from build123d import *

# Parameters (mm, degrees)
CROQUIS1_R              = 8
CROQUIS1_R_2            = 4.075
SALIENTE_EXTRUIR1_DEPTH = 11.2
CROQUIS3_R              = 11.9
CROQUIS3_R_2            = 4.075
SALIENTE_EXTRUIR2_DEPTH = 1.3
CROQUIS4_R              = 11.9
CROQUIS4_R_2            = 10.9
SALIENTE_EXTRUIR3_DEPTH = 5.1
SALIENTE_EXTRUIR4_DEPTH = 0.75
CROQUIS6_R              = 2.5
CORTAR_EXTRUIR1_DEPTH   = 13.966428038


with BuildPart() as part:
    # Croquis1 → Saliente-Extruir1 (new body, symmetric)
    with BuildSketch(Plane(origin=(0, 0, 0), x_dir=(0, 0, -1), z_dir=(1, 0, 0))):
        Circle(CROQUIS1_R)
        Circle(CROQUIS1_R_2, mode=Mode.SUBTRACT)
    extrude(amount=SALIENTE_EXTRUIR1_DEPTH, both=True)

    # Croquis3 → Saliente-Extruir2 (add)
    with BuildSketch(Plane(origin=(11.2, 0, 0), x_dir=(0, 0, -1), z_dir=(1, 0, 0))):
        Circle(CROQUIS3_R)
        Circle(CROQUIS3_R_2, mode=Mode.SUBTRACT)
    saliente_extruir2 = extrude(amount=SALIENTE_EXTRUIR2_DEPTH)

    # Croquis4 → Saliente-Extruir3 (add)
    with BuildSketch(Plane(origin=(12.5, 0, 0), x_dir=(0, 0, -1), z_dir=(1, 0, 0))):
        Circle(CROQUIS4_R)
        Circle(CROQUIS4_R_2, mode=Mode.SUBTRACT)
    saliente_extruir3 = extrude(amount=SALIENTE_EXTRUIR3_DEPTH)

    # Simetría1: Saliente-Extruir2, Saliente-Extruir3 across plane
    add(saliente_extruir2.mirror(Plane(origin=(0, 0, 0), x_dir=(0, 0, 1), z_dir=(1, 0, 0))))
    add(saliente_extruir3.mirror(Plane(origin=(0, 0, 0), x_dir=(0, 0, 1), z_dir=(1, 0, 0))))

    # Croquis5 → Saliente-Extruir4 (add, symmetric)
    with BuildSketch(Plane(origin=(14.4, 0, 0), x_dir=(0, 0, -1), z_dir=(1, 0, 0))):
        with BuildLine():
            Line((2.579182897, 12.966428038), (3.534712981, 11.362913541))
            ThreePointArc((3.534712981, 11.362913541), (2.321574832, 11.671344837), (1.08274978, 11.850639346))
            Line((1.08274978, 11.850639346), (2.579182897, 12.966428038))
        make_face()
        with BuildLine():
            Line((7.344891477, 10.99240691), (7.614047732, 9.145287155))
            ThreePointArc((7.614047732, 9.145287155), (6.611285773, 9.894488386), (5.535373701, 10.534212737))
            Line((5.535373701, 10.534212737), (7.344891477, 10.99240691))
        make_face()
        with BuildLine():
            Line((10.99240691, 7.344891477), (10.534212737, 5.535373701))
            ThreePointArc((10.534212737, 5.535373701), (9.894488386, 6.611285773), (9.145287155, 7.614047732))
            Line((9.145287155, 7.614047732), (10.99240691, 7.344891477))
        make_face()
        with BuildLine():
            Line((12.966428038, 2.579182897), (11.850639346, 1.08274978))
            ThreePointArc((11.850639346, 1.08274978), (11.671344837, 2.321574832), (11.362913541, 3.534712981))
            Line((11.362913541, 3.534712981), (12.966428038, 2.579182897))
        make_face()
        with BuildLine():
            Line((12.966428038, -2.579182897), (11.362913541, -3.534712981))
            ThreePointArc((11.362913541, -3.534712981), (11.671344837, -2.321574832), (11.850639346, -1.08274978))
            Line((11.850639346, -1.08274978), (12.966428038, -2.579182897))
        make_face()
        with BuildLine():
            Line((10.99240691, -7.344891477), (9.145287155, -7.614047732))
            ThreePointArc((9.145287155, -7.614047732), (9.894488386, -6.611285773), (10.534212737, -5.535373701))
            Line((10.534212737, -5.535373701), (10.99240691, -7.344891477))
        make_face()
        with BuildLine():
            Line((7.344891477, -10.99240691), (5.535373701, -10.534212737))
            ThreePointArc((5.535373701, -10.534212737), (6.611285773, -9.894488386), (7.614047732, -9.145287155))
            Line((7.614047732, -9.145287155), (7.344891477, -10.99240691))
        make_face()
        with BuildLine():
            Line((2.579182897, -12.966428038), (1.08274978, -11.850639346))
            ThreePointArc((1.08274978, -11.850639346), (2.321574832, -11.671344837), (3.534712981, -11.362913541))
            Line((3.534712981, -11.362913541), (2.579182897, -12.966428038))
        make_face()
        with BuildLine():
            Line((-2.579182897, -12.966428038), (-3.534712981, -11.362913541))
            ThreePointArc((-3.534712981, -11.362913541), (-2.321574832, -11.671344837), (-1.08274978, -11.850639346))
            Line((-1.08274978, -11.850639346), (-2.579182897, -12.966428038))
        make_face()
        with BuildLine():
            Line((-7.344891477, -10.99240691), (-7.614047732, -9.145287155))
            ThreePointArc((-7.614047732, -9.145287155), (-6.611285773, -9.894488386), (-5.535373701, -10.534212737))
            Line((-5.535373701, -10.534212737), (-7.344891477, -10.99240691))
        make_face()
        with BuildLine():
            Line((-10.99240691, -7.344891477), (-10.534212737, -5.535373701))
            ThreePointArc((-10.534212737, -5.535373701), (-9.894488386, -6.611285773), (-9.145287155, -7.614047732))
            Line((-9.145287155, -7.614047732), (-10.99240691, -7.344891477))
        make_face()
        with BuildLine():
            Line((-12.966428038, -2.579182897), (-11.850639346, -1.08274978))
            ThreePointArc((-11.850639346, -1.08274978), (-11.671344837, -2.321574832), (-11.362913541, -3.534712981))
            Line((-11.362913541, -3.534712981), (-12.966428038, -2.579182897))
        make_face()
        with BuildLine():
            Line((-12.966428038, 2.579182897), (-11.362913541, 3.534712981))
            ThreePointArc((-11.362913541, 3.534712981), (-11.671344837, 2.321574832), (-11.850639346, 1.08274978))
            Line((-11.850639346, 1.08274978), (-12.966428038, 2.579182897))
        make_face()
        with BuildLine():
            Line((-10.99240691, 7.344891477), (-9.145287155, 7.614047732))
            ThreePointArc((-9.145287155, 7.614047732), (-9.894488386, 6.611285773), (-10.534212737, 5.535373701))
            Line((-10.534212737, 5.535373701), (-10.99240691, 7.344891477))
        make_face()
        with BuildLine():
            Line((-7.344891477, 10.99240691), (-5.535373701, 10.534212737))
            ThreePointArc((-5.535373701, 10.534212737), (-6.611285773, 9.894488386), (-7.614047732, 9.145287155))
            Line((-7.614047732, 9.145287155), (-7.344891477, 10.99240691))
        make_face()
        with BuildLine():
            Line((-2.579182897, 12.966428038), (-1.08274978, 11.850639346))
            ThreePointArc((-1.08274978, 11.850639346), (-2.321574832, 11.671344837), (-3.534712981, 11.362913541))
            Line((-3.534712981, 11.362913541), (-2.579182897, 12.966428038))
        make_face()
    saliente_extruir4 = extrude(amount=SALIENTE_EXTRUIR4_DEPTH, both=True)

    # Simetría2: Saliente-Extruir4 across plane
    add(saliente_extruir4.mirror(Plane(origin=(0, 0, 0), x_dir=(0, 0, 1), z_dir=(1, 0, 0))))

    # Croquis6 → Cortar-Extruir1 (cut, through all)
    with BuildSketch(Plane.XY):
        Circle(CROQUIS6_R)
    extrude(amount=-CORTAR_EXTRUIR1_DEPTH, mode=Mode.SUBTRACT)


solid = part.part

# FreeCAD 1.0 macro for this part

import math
import FreeCAD as App
import Part
import Sketcher

V = App.Vector

doc = App.newDocument("Part")
params = doc.addObject("Spreadsheet::Sheet", "Params")
for row, (alias, value) in enumerate([
    ("sketch1_diameter", "16 mm"),
    ("sketch1_diameter2", "8.15 mm"),
    ("pad1_length", "22.4 mm"),
    ("sketch2_diameter", "23.8 mm"),
    ("sketch2_diameter2", "8.15 mm"),
    ("pad2_length", "1.3 mm"),
    ("sketch3_diameter", "23.8 mm"),
    ("sketch3_diameter2", "21.8 mm"),
    ("pad3_length", "5.1 mm"),
    ("sketch4_radius", "11.9 mm"),
    ("pad4_length", "1.5 mm"),
    ("sketch5_diameter", "5 mm"),
], start=1):
    params.set(f"A{row}", alias)
    params.set(f"B{row}", "=" + value)
    params.setAlias(f"B{row}", alias)

body = doc.addObject("PartDesign::Body", "Body")

sketch1 = body.newObject("Sketcher::SketchObject", "Sketch")
sketch1.AttachmentSupport = (doc.getObject("YZ_Plane"), [""])
sketch1.MapMode = "FlatFace"
sketch1.addGeometry(Part.Circle(V(0, 0, 0), V(0, 0, 1), 8), False)
sketch1.addGeometry(Part.Circle(V(0, 0, 0), V(0, 0, 1), 4.1), False)
sketch1.addConstraint(Sketcher.Constraint("Coincident", 0, 3, -1, 1))
sketch1.addConstraint(Sketcher.Constraint("Coincident", 1, 3, -1, 1))
sketch1.addConstraint(Sketcher.Constraint("Diameter", 0, 16.0))
sketch1.addConstraint(Sketcher.Constraint("Diameter", 1, 8.15))
sketch1.setExpression("Constraints[2]", "Params.sketch1_diameter")
sketch1.setExpression("Constraints[3]", "Params.sketch1_diameter2")
pad1 = body.newObject("PartDesign::Pad", "Pad")
pad1.Profile = sketch1
pad1.setExpression("Length", "Params.pad1_length")
pad1.Midplane = True

sketch2 = body.newObject("Sketcher::SketchObject", "Sketch001")
sketch2.AttachmentSupport = (doc.getObject("YZ_Plane"), [""])
sketch2.MapMode = "FlatFace"
sketch2.AttachmentOffset = App.Placement(V(0, 0, 11.2), App.Rotation())
sketch2.addGeometry(Part.Circle(V(0, 0, 0), V(0, 0, 1), 11.9), False)
sketch2.addGeometry(Part.Circle(V(0, 0, 0), V(0, 0, 1), 4.1), False)
sketch2.addConstraint(Sketcher.Constraint("Coincident", 0, 3, -1, 1))
sketch2.addConstraint(Sketcher.Constraint("Coincident", 1, 3, -1, 1))
sketch2.addConstraint(Sketcher.Constraint("Diameter", 0, 23.8))
sketch2.addConstraint(Sketcher.Constraint("Diameter", 1, 8.15))
sketch2.setExpression("Constraints[2]", "Params.sketch2_diameter")
sketch2.setExpression("Constraints[3]", "Params.sketch2_diameter2")
pad2 = body.newObject("PartDesign::Pad", "Pad001")
pad2.Profile = sketch2
pad2.setExpression("Length", "Params.pad2_length")

sketch3 = body.newObject("Sketcher::SketchObject", "Sketch002")
sketch3.AttachmentSupport = (doc.getObject("YZ_Plane"), [""])
sketch3.MapMode = "FlatFace"
sketch3.AttachmentOffset = App.Placement(V(0, 0, 12.5), App.Rotation())
sketch3.addGeometry(Part.Circle(V(0, 0, 0), V(0, 0, 1), 12), False)
sketch3.addGeometry(Part.Circle(V(0, 0, 0), V(0, 0, 1), 11), False)
sketch3.addConstraint(Sketcher.Constraint("Coincident", 0, 3, -1, 1))
sketch3.addConstraint(Sketcher.Constraint("Coincident", 1, 3, -1, 1))
sketch3.addConstraint(Sketcher.Constraint("Diameter", 0, 23.8))
sketch3.addConstraint(Sketcher.Constraint("Diameter", 1, 21.8))
sketch3.setExpression("Constraints[2]", "Params.sketch3_diameter")
sketch3.setExpression("Constraints[3]", "Params.sketch3_diameter2")
pad3 = body.newObject("PartDesign::Pad", "Pad002")
pad3.Profile = sketch3
pad3.setExpression("Length", "Params.pad3_length")
doc.recompute()

mirrored = body.newObject("PartDesign::Mirrored", "Mirrored")
mirrored.Originals = [pad2, pad3]
mirrored.MirrorPlane = (doc.getObject("YZ_Plane"), [""])
body.Tip = mirrored

sketch4 = body.newObject("Sketcher::SketchObject", "Sketch003")
sketch4.AttachmentSupport = (doc.getObject("YZ_Plane"), [""])
sketch4.MapMode = "FlatFace"
sketch4.AttachmentOffset = App.Placement(V(0, 0, 14.4), App.Rotation())
sketch4.addGeometry(Part.LineSegment(V(11.4, -3.5, 0), V(13, -2.6, 0)), False)
sketch4.addGeometry(Part.LineSegment(V(13, -2.6, 0), V(11.9, -1.1, 0)), False)
sketch4.addGeometry(Part.ArcOfCircle(Part.Circle(V(0, 0, 0), V(0, 0, 1), 11.9), math.radians(-17.28), math.radians(-5.22)), False)
sketch4.addGeometry(Part.LineSegment(V(9.1, -7.6, 0), V(11, -7.3, 0)), False)
sketch4.addGeometry(Part.LineSegment(V(11, -7.3, 0), V(10.5, -5.5, 0)), False)
sketch4.addGeometry(Part.ArcOfCircle(Part.Circle(V(0, 0, 0), V(0, 0, 1), 11.9), math.radians(-39.78), math.radians(-27.72)), False)
sketch4.addGeometry(Part.LineSegment(V(5.5, -10.5, 0), V(7.3, -11, 0)), False)
sketch4.addGeometry(Part.LineSegment(V(7.3, -11, 0), V(7.6, -9.1, 0)), False)
sketch4.addGeometry(Part.ArcOfCircle(Part.Circle(V(0, 0, 0), V(0, 0, 1), 11.9), math.radians(-62.28), math.radians(-50.22)), False)
sketch4.addGeometry(Part.LineSegment(V(1.1, -11.9, 0), V(2.6, -13, 0)), False)
sketch4.addGeometry(Part.LineSegment(V(2.6, -13, 0), V(3.5, -11.4, 0)), False)
sketch4.addGeometry(Part.ArcOfCircle(Part.Circle(V(0, 0, 0), V(0, 0, 1), 11.9), math.radians(-84.78), math.radians(-72.72)), False)
sketch4.addGeometry(Part.LineSegment(V(-3.5, -11.4, 0), V(-2.6, -13, 0)), False)
sketch4.addGeometry(Part.LineSegment(V(-2.6, -13, 0), V(-1.1, -11.9, 0)), False)
sketch4.addGeometry(Part.ArcOfCircle(Part.Circle(V(0, 0, 0), V(0, 0, 1), 11.9), math.radians(-107.28), math.radians(-95.22)), False)
sketch4.addGeometry(Part.LineSegment(V(-7.6, -9.1, 0), V(-7.3, -11, 0)), False)
sketch4.addGeometry(Part.LineSegment(V(-7.3, -11, 0), V(-5.5, -10.5, 0)), False)
sketch4.addGeometry(Part.ArcOfCircle(Part.Circle(V(0, 0, 0), V(0, 0, 1), 11.9), math.radians(-129.78), math.radians(-117.72)), False)
sketch4.addGeometry(Part.LineSegment(V(-10.5, -5.5, 0), V(-11, -7.3, 0)), False)
sketch4.addGeometry(Part.LineSegment(V(-11, -7.3, 0), V(-9.1, -7.6, 0)), False)
sketch4.addGeometry(Part.ArcOfCircle(Part.Circle(V(0, 0, 0), V(0, 0, 1), 11.9), math.radians(-152.28), math.radians(-140.22)), False)
sketch4.addGeometry(Part.LineSegment(V(-11.9, -1.1, 0), V(-13, -2.6, 0)), False)
sketch4.addGeometry(Part.LineSegment(V(-13, -2.6, 0), V(-11.4, -3.5, 0)), False)
sketch4.addGeometry(Part.ArcOfCircle(Part.Circle(V(0, 0, 0), V(0, 0, 1), 11.9), math.radians(-174.78), math.radians(-162.72)), False)
sketch4.addGeometry(Part.LineSegment(V(-11.4, 3.5, 0), V(-13, 2.6, 0)), False)
sketch4.addGeometry(Part.LineSegment(V(-13, 2.6, 0), V(-11.9, 1.1, 0)), False)
sketch4.addGeometry(Part.ArcOfCircle(Part.Circle(V(0, 0, 0), V(0, 0, 1), 11.9), math.radians(162.72), math.radians(174.78)), False)
sketch4.addGeometry(Part.LineSegment(V(-9.1, 7.6, 0), V(-11, 7.3, 0)), False)
sketch4.addGeometry(Part.LineSegment(V(-11, 7.3, 0), V(-10.5, 5.5, 0)), False)
sketch4.addGeometry(Part.ArcOfCircle(Part.Circle(V(0, 0, 0), V(0, 0, 1), 11.9), math.radians(140.22), math.radians(152.28)), False)
sketch4.addGeometry(Part.LineSegment(V(-5.5, 10.5, 0), V(-7.3, 11, 0)), False)
sketch4.addGeometry(Part.LineSegment(V(-7.3, 11, 0), V(-7.6, 9.1, 0)), False)
sketch4.addGeometry(Part.ArcOfCircle(Part.Circle(V(0, 0, 0), V(0, 0, 1), 11.9), math.radians(117.72), math.radians(129.78)), False)
sketch4.addGeometry(Part.LineSegment(V(-1.1, 11.9, 0), V(-2.6, 13, 0)), False)
sketch4.addGeometry(Part.LineSegment(V(-2.6, 13, 0), V(-3.5, 11.4, 0)), False)
sketch4.addGeometry(Part.ArcOfCircle(Part.Circle(V(0, 0, 0), V(0, 0, 1), 11.9), math.radians(95.22), math.radians(107.28)), False)
sketch4.addGeometry(Part.LineSegment(V(3.5, 11.4, 0), V(2.6, 13, 0)), False)
sketch4.addGeometry(Part.LineSegment(V(2.6, 13, 0), V(1.1, 11.9, 0)), False)
sketch4.addGeometry(Part.ArcOfCircle(Part.Circle(V(0, 0, 0), V(0, 0, 1), 11.9), math.radians(72.72), math.radians(84.78)), False)
sketch4.addGeometry(Part.LineSegment(V(7.6, 9.1, 0), V(7.3, 11, 0)), False)
sketch4.addGeometry(Part.LineSegment(V(7.3, 11, 0), V(5.5, 10.5, 0)), False)
sketch4.addGeometry(Part.ArcOfCircle(Part.Circle(V(0, 0, 0), V(0, 0, 1), 11.9), math.radians(50.22), math.radians(62.28)), False)
sketch4.addGeometry(Part.LineSegment(V(10.5, 5.5, 0), V(11, 7.3, 0)), False)
sketch4.addGeometry(Part.LineSegment(V(11, 7.3, 0), V(9.1, 7.6, 0)), False)
sketch4.addGeometry(Part.ArcOfCircle(Part.Circle(V(0, 0, 0), V(0, 0, 1), 11.9), math.radians(27.72), math.radians(39.78)), False)
sketch4.addGeometry(Part.LineSegment(V(11.9, 1.1, 0), V(13, 2.6, 0)), False)
sketch4.addGeometry(Part.LineSegment(V(13, 2.6, 0), V(11.4, 3.5, 0)), False)
sketch4.addGeometry(Part.ArcOfCircle(Part.Circle(V(0, 0, 0), V(0, 0, 1), 11.9), math.radians(5.22), math.radians(17.28)), False)
sketch4.addConstraint(Sketcher.Constraint("Coincident", 0, 2, 1, 1))
sketch4.addConstraint(Sketcher.Constraint("Coincident", 1, 2, 2, 2))
sketch4.addConstraint(Sketcher.Constraint("Coincident", 2, 1, 0, 1))
sketch4.addConstraint(Sketcher.Constraint("Coincident", 3, 2, 4, 1))
sketch4.addConstraint(Sketcher.Constraint("Coincident", 4, 2, 5, 2))
sketch4.addConstraint(Sketcher.Constraint("Coincident", 5, 1, 3, 1))
sketch4.addConstraint(Sketcher.Constraint("Coincident", 6, 2, 7, 1))
sketch4.addConstraint(Sketcher.Constraint("Coincident", 7, 2, 8, 2))
sketch4.addConstraint(Sketcher.Constraint("Coincident", 8, 1, 6, 1))
sketch4.addConstraint(Sketcher.Constraint("Coincident", 9, 2, 10, 1))
sketch4.addConstraint(Sketcher.Constraint("Coincident", 10, 2, 11, 2))
sketch4.addConstraint(Sketcher.Constraint("Coincident", 11, 1, 9, 1))
sketch4.addConstraint(Sketcher.Constraint("Coincident", 12, 2, 13, 1))
sketch4.addConstraint(Sketcher.Constraint("Coincident", 13, 2, 14, 2))
sketch4.addConstraint(Sketcher.Constraint("Coincident", 14, 1, 12, 1))
sketch4.addConstraint(Sketcher.Constraint("Coincident", 15, 2, 16, 1))
sketch4.addConstraint(Sketcher.Constraint("Coincident", 16, 2, 17, 2))
sketch4.addConstraint(Sketcher.Constraint("Coincident", 17, 1, 15, 1))
sketch4.addConstraint(Sketcher.Constraint("Coincident", 18, 2, 19, 1))
sketch4.addConstraint(Sketcher.Constraint("Coincident", 19, 2, 20, 2))
sketch4.addConstraint(Sketcher.Constraint("Coincident", 20, 1, 18, 1))
sketch4.addConstraint(Sketcher.Constraint("Coincident", 21, 2, 22, 1))
sketch4.addConstraint(Sketcher.Constraint("Coincident", 22, 2, 23, 2))
sketch4.addConstraint(Sketcher.Constraint("Coincident", 23, 1, 21, 1))
sketch4.addConstraint(Sketcher.Constraint("Coincident", 24, 2, 25, 1))
sketch4.addConstraint(Sketcher.Constraint("Coincident", 25, 2, 26, 2))
sketch4.addConstraint(Sketcher.Constraint("Coincident", 26, 1, 24, 1))
sketch4.addConstraint(Sketcher.Constraint("Coincident", 27, 2, 28, 1))
sketch4.addConstraint(Sketcher.Constraint("Coincident", 28, 2, 29, 2))
sketch4.addConstraint(Sketcher.Constraint("Coincident", 29, 1, 27, 1))
sketch4.addConstraint(Sketcher.Constraint("Coincident", 30, 2, 31, 1))
sketch4.addConstraint(Sketcher.Constraint("Coincident", 31, 2, 32, 2))
sketch4.addConstraint(Sketcher.Constraint("Coincident", 32, 1, 30, 1))
sketch4.addConstraint(Sketcher.Constraint("Coincident", 33, 2, 34, 1))
sketch4.addConstraint(Sketcher.Constraint("Coincident", 34, 2, 35, 2))
sketch4.addConstraint(Sketcher.Constraint("Coincident", 35, 1, 33, 1))
sketch4.addConstraint(Sketcher.Constraint("Coincident", 36, 2, 37, 1))
sketch4.addConstraint(Sketcher.Constraint("Coincident", 37, 2, 38, 2))
sketch4.addConstraint(Sketcher.Constraint("Coincident", 38, 1, 36, 1))
sketch4.addConstraint(Sketcher.Constraint("Coincident", 39, 2, 40, 1))
sketch4.addConstraint(Sketcher.Constraint("Coincident", 40, 2, 41, 2))
sketch4.addConstraint(Sketcher.Constraint("Coincident", 41, 1, 39, 1))
sketch4.addConstraint(Sketcher.Constraint("Coincident", 42, 2, 43, 1))
sketch4.addConstraint(Sketcher.Constraint("Coincident", 43, 2, 44, 2))
sketch4.addConstraint(Sketcher.Constraint("Coincident", 44, 1, 42, 1))
sketch4.addConstraint(Sketcher.Constraint("Coincident", 45, 2, 46, 1))
sketch4.addConstraint(Sketcher.Constraint("Coincident", 46, 2, 47, 2))
sketch4.addConstraint(Sketcher.Constraint("Coincident", 47, 1, 45, 1))
sketch4.addConstraint(Sketcher.Constraint("Coincident", 2, 3, -1, 1))
sketch4.addConstraint(Sketcher.Constraint("Coincident", 5, 3, -1, 1))
sketch4.addConstraint(Sketcher.Constraint("Coincident", 8, 3, -1, 1))
sketch4.addConstraint(Sketcher.Constraint("Coincident", 11, 3, -1, 1))
sketch4.addConstraint(Sketcher.Constraint("Coincident", 14, 3, -1, 1))
sketch4.addConstraint(Sketcher.Constraint("Coincident", 17, 3, -1, 1))
sketch4.addConstraint(Sketcher.Constraint("Coincident", 20, 3, -1, 1))
sketch4.addConstraint(Sketcher.Constraint("Coincident", 23, 3, -1, 1))
sketch4.addConstraint(Sketcher.Constraint("Coincident", 26, 3, -1, 1))
sketch4.addConstraint(Sketcher.Constraint("Coincident", 29, 3, -1, 1))
sketch4.addConstraint(Sketcher.Constraint("Coincident", 32, 3, -1, 1))
sketch4.addConstraint(Sketcher.Constraint("Coincident", 35, 3, -1, 1))
sketch4.addConstraint(Sketcher.Constraint("Coincident", 38, 3, -1, 1))
sketch4.addConstraint(Sketcher.Constraint("Coincident", 41, 3, -1, 1))
sketch4.addConstraint(Sketcher.Constraint("Coincident", 44, 3, -1, 1))
sketch4.addConstraint(Sketcher.Constraint("Coincident", 47, 3, -1, 1))
sketch4.addConstraint(Sketcher.Constraint("Equal", 2, 5))
sketch4.addConstraint(Sketcher.Constraint("Equal", 5, 8))
sketch4.addConstraint(Sketcher.Constraint("Equal", 8, 11))
sketch4.addConstraint(Sketcher.Constraint("Equal", 11, 14))
sketch4.addConstraint(Sketcher.Constraint("Equal", 14, 17))
sketch4.addConstraint(Sketcher.Constraint("Equal", 17, 20))
sketch4.addConstraint(Sketcher.Constraint("Equal", 20, 23))
sketch4.addConstraint(Sketcher.Constraint("Equal", 23, 26))
sketch4.addConstraint(Sketcher.Constraint("Equal", 26, 29))
sketch4.addConstraint(Sketcher.Constraint("Equal", 29, 32))
sketch4.addConstraint(Sketcher.Constraint("Equal", 32, 35))
sketch4.addConstraint(Sketcher.Constraint("Equal", 35, 38))
sketch4.addConstraint(Sketcher.Constraint("Equal", 38, 41))
sketch4.addConstraint(Sketcher.Constraint("Equal", 41, 44))
sketch4.addConstraint(Sketcher.Constraint("Equal", 44, 47))
sketch4.addConstraint(Sketcher.Constraint("Symmetric", 0, 2, 24, 2, -1, 1))
sketch4.addConstraint(Sketcher.Constraint("Symmetric", 3, 2, 27, 2, -1, 1))
sketch4.addConstraint(Sketcher.Constraint("Symmetric", 6, 2, 30, 2, -1, 1))
sketch4.addConstraint(Sketcher.Constraint("Symmetric", 9, 2, 33, 2, -1, 1))
sketch4.addConstraint(Sketcher.Constraint("Symmetric", 12, 2, 36, 2, -1, 1))
sketch4.addConstraint(Sketcher.Constraint("Symmetric", 15, 2, 39, 2, -1, 1))
sketch4.addConstraint(Sketcher.Constraint("Symmetric", 18, 2, 42, 2, -1, 1))
sketch4.addConstraint(Sketcher.Constraint("Symmetric", 21, 2, 45, 2, -1, 1))
sketch4.addConstraint(Sketcher.Constraint("Symmetric", 9, 2, 12, 2, -2))
sketch4.addConstraint(Sketcher.Constraint("Symmetric", 6, 2, 15, 2, -2))
sketch4.addConstraint(Sketcher.Constraint("Symmetric", 3, 2, 18, 2, -2))
sketch4.addConstraint(Sketcher.Constraint("Symmetric", 0, 2, 21, 2, -2))
sketch4.addConstraint(Sketcher.Constraint("Perpendicular", 0, 12))
sketch4.addConstraint(Sketcher.Constraint("Perpendicular", 1, 13))
sketch4.addConstraint(Sketcher.Constraint("Perpendicular", 3, 15))
sketch4.addConstraint(Sketcher.Constraint("Perpendicular", 4, 16))
sketch4.addConstraint(Sketcher.Constraint("Perpendicular", 6, 18))
sketch4.addConstraint(Sketcher.Constraint("Perpendicular", 7, 19))
sketch4.addConstraint(Sketcher.Constraint("Perpendicular", 9, 21))
sketch4.addConstraint(Sketcher.Constraint("Perpendicular", 10, 22))
sketch4.addConstraint(Sketcher.Constraint("Perpendicular", 12, 24))
sketch4.addConstraint(Sketcher.Constraint("Perpendicular", 13, 25))
sketch4.addConstraint(Sketcher.Constraint("Perpendicular", 15, 27))
sketch4.addConstraint(Sketcher.Constraint("Perpendicular", 16, 28))
sketch4.addConstraint(Sketcher.Constraint("Perpendicular", 18, 30))
sketch4.addConstraint(Sketcher.Constraint("Perpendicular", 19, 31))
sketch4.addConstraint(Sketcher.Constraint("Perpendicular", 21, 33))
sketch4.addConstraint(Sketcher.Constraint("Perpendicular", 22, 34))
sketch4.addConstraint(Sketcher.Constraint("Perpendicular", 24, 36))
sketch4.addConstraint(Sketcher.Constraint("Perpendicular", 25, 37))
sketch4.addConstraint(Sketcher.Constraint("Perpendicular", 27, 39))
sketch4.addConstraint(Sketcher.Constraint("Perpendicular", 28, 40))
sketch4.addConstraint(Sketcher.Constraint("Perpendicular", 30, 42))
sketch4.addConstraint(Sketcher.Constraint("Perpendicular", 31, 43))
sketch4.addConstraint(Sketcher.Constraint("Perpendicular", 33, 45))
sketch4.addConstraint(Sketcher.Constraint("Perpendicular", 34, 46))
sketch4.addConstraint(Sketcher.Constraint("Horizontal", 11, 1, 13, 2))
sketch4.addConstraint(Sketcher.Constraint("Horizontal", 10, 2, 14, 1))
sketch4.addConstraint(Sketcher.Constraint("Horizontal", 8, 1, 16, 2))
sketch4.addConstraint(Sketcher.Constraint("Horizontal", 7, 2, 17, 1))
sketch4.addConstraint(Sketcher.Constraint("Equal", 0, 1))
sketch4.addConstraint(Sketcher.Constraint("Equal", 1, 3))
sketch4.addConstraint(Sketcher.Constraint("Equal", 3, 4))
sketch4.addConstraint(Sketcher.Constraint("Equal", 4, 6))
sketch4.addConstraint(Sketcher.Constraint("Equal", 6, 7))
sketch4.addConstraint(Sketcher.Constraint("Equal", 7, 9))
sketch4.addConstraint(Sketcher.Constraint("Equal", 9, 10))
sketch4.addConstraint(Sketcher.Constraint("Radius", 2, 11.9))
sketch4.addConstraint(Sketcher.Constraint("DistanceX", -1, 1, 0, 2, 12.966428))
sketch4.addConstraint(Sketcher.Constraint("DistanceX", -1, 1, 1, 2, 11.850639))
sketch4.addConstraint(Sketcher.Constraint("DistanceY", 3, 2, -1, 1, 7.344891))
sketch4.addConstraint(Sketcher.Constraint("Distance", 0, 1.866627))
sketch4.addConstraint(Sketcher.Constraint("DistanceX", -1, 1, 3, 2, 10.992407))
sketch4.setExpression("Constraints[126]", "Params.sketch4_radius")
pad4 = body.newObject("PartDesign::Pad", "Pad003")
pad4.Profile = sketch4
pad4.setExpression("Length", "Params.pad4_length")
pad4.Midplane = True
doc.recompute()

mirrored2 = body.newObject("PartDesign::Mirrored", "Mirrored001")
mirrored2.Originals = [pad4]
mirrored2.MirrorPlane = (doc.getObject("YZ_Plane"), [""])
body.Tip = mirrored2

sketch5 = body.newObject("Sketcher::SketchObject", "Sketch004")
sketch5.AttachmentSupport = (doc.getObject("XY_Plane"), [""])
sketch5.MapMode = "FlatFace"
sketch5.addGeometry(Part.Circle(V(0, 0, 0), V(0, 0, 1), 2.5), False)
sketch5.addConstraint(Sketcher.Constraint("Coincident", 0, 3, -1, 1))
sketch5.addConstraint(Sketcher.Constraint("Diameter", 0, 5.0))
sketch5.setExpression("Constraints[1]", "Params.sketch5_diameter")
pocket1 = body.newObject("PartDesign::Pocket", "Pocket")
pocket1.Profile = sketch5
pocket1.Type = "ThroughAll"

doc.recompute()
